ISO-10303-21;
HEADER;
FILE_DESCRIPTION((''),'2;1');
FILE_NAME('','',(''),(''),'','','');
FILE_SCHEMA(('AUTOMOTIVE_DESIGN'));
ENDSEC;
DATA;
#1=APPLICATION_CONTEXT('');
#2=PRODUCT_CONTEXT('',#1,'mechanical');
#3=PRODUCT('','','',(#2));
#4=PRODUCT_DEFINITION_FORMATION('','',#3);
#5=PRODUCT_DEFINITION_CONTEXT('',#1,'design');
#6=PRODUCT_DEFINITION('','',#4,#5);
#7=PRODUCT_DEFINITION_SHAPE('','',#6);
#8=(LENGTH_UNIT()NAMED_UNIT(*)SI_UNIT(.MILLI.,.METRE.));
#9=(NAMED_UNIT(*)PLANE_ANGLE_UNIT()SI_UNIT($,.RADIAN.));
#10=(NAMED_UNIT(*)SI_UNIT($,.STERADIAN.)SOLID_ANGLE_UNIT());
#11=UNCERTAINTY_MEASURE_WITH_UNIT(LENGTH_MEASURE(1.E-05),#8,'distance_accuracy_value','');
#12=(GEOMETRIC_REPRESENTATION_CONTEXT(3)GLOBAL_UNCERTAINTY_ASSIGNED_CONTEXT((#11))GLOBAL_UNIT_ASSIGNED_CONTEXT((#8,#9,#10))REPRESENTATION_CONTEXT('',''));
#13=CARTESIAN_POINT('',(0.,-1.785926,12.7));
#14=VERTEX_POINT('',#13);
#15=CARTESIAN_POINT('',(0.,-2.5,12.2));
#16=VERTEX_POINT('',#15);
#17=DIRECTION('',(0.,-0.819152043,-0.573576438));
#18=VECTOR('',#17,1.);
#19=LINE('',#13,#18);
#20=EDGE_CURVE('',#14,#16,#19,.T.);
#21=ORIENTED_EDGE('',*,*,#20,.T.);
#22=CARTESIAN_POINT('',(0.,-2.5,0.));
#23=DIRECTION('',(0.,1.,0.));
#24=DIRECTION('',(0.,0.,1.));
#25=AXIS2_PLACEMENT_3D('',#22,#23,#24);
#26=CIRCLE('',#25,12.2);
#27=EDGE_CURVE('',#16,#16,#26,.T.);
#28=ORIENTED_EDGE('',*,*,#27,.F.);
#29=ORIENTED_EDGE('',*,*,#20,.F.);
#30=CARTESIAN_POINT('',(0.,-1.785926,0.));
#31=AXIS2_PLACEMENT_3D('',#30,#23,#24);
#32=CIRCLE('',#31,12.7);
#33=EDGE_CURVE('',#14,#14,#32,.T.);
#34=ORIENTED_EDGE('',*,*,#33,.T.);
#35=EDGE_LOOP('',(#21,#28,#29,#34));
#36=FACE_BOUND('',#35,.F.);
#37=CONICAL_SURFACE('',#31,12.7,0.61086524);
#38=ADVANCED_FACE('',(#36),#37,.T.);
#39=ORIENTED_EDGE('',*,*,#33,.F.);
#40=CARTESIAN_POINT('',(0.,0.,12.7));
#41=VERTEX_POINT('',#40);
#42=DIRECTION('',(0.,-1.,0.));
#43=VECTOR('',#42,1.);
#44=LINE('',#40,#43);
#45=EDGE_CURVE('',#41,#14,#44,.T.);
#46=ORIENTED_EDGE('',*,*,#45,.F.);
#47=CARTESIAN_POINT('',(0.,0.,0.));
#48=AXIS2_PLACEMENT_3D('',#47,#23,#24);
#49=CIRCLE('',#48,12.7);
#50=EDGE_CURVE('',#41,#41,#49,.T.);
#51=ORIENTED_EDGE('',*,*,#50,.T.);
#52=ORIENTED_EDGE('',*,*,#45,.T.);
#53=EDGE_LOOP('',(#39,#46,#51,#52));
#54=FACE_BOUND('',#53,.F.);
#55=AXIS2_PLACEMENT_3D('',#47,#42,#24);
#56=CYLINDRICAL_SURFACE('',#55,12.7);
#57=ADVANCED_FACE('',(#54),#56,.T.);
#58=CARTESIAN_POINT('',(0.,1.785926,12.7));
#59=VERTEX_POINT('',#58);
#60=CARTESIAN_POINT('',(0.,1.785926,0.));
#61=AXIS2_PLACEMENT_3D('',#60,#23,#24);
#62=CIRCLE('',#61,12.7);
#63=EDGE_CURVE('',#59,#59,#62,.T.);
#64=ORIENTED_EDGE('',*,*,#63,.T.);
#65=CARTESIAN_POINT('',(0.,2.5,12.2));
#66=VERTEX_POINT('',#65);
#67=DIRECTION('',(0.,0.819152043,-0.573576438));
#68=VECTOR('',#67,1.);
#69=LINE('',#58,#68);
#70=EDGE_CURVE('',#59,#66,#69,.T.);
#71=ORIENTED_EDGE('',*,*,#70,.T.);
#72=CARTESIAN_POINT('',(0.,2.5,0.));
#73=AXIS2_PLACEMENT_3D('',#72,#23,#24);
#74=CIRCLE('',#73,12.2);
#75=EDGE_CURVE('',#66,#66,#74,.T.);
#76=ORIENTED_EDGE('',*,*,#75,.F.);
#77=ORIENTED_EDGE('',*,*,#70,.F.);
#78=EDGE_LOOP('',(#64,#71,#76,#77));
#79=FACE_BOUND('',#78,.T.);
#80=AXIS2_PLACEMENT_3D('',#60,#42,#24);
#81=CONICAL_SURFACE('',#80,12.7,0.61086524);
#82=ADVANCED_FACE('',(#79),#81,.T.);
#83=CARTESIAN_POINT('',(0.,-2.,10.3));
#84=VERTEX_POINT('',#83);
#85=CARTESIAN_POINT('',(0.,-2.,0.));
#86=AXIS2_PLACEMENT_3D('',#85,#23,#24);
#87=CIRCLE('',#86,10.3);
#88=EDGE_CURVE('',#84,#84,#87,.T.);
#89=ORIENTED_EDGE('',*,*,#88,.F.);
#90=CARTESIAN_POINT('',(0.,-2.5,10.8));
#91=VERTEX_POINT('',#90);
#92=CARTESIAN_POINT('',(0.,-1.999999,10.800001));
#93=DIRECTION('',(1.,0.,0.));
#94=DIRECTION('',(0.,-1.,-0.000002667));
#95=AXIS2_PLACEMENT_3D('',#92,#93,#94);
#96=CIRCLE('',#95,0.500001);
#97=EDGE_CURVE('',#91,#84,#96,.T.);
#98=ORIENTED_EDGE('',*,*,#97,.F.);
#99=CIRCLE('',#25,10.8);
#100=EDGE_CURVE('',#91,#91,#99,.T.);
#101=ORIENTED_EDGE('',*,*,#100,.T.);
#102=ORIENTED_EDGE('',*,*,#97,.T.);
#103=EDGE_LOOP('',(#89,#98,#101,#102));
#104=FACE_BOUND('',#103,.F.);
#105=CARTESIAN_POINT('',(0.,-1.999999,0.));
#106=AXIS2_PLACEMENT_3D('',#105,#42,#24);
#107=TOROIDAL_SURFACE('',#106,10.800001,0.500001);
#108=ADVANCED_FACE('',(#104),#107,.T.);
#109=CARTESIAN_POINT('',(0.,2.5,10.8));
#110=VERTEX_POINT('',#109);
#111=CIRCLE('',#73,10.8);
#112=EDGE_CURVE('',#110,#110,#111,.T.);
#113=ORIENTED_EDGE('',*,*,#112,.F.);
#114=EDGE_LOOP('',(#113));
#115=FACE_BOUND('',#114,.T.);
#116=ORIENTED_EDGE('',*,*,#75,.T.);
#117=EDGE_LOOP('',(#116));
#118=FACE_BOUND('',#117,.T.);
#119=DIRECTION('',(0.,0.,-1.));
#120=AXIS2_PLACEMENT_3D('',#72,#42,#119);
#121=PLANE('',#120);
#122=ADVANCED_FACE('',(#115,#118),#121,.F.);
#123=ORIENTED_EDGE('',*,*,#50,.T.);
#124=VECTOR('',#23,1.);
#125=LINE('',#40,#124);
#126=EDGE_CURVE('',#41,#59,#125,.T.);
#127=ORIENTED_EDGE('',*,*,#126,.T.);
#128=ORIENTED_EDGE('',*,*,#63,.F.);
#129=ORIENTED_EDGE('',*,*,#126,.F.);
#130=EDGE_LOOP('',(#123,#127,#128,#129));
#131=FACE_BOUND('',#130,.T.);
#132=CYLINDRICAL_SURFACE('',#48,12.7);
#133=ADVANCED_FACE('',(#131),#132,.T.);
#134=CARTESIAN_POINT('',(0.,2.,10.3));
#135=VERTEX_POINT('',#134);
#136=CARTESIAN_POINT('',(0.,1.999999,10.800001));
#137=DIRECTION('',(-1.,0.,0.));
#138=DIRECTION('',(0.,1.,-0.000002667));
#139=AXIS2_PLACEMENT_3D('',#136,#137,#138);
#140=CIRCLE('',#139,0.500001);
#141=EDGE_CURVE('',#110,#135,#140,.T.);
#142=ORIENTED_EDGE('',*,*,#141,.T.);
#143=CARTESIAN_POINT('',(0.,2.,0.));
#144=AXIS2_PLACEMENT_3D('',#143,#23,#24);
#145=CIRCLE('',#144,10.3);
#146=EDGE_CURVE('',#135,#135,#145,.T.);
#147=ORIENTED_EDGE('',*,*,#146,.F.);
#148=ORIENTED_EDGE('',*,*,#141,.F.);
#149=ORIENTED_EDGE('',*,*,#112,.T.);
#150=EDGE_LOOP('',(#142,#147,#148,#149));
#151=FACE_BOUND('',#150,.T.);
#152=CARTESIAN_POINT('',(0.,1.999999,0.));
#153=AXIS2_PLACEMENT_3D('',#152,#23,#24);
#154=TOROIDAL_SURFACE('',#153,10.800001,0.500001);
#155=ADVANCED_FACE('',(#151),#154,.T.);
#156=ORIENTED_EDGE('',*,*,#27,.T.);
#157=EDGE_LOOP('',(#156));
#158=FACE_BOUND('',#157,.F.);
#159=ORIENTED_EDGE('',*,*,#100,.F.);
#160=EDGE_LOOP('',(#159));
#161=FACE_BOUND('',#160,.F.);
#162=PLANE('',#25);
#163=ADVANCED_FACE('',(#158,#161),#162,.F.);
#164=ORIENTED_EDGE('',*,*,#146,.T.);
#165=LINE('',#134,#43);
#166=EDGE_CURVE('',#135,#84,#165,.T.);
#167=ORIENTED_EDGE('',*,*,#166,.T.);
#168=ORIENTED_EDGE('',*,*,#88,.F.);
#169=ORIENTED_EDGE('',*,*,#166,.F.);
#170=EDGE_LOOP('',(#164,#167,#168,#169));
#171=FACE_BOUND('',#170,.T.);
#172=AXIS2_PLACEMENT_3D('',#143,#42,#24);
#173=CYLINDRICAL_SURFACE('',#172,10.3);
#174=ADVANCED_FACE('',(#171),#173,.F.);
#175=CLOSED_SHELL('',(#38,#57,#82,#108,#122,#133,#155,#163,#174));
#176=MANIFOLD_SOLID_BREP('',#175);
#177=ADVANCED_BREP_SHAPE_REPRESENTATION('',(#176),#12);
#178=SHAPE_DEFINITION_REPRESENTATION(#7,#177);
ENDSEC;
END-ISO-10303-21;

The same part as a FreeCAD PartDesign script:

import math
import FreeCAD as App
import Part
import Sketcher
from FreeCAD import Vector
Q = App.Units.Quantity

doc = App.newDocument("Part")
body = doc.addObject("PartDesign::Body", "Body")

sketch1 = body.newObject("Sketcher::SketchObject", "Sketch")
sketch1.AttachmentSupport = (doc.getObject("YZ_Plane"), [""])
sketch1.MapMode = "FlatFace"
sketch1.addGeometry([
    Part.ArcOfCircle(Part.Circle(Vector(-1.999999, 10.800001, 0), Vector(0, 0, 1), 0.500001), math.radians(-179.999847), math.radians(-90.000153)),
    Part.LineSegment(Vector(-2, 10.3, 0), Vector(0, 10.3, 0)),
    Part.LineSegment(Vector(0, 10.3, 0), Vector(0, 12.7, 0)),
    Part.LineSegment(Vector(0, 12.7, 0), Vector(-1.785926, 12.7, 0)),
    Part.LineSegment(Vector(-1.785926, 12.7, 0), Vector(-2.5, 12.2, 0)),
    Part.LineSegment(Vector(-2.5, 12.2, 0), Vector(-2.5, 10.8, 0)),
], False)
sketch1.addConstraint([
    Sketcher.Constraint("Coincident", 0, 2, 1, 1),
    Sketcher.Constraint("Coincident", 1, 2, 2, 1),
    Sketcher.Constraint("Coincident", 2, 2, 3, 1),
    Sketcher.Constraint("Coincident", 3, 2, 4, 1),
    Sketcher.Constraint("Coincident", 4, 2, 5, 1),
    Sketcher.Constraint("Coincident", 5, 2, 0, 1),
    Sketcher.Constraint("Horizontal", 1),
    Sketcher.Constraint("Vertical", 2),
    Sketcher.Constraint("Horizontal", 3),
    Sketcher.Constraint("Vertical", 5),
    Sketcher.Constraint("PointOnObject", 1, 2, -2),
    Sketcher.Constraint("Horizontal", 0, 3, 5, 2),
    Sketcher.Constraint("Radius", 0, Q("0.500001 mm")),
    Sketcher.Constraint("DistanceX", 1, 1, 1, 2, Q("2 mm")),
    Sketcher.Constraint("Angle", 4, Q("-145 deg")),
    Sketcher.Constraint("DistanceY", 2, 1, 2, 2, Q("2.4 mm")),
    Sketcher.Constraint("DistanceY", 5, 2, 5, 1, Q("1.4 mm")),
    Sketcher.Constraint("DistanceX", 0, 3, -1, 1, Q("1.999999 mm")),
    Sketcher.Constraint("DistanceY", -1, 1, 0, 3, Q("10.800001 mm")),
])
revolution = body.newObject("PartDesign::Revolution", "Revolution")
revolution.Profile = sketch1
revolution.ReferenceAxis = (sketch1, ["H_Axis"])
revolution.Angle = 360
body2 = doc.addObject("PartDesign::Body", "Body001")
doc.recompute()

body2.BaseFeature = body
doc.recompute()

mirroring = doc.addObject("Part::Mirroring", "Mirroring")
mirroring.Source = body
mirroring.Base = Vector(0, 0, 0)
mirroring.Normal = Vector(0, -1, 0)
body3 = doc.addObject("PartDesign::Body", "Body002")
body3.BaseFeature = mirroring
boolean = body2.newObject("PartDesign::Boolean", "Boolean")
boolean.Type = "Fuse"
boolean.addObjects([body3])
doc.recompute()
mirroring.Visibility = False

doc.recompute()
